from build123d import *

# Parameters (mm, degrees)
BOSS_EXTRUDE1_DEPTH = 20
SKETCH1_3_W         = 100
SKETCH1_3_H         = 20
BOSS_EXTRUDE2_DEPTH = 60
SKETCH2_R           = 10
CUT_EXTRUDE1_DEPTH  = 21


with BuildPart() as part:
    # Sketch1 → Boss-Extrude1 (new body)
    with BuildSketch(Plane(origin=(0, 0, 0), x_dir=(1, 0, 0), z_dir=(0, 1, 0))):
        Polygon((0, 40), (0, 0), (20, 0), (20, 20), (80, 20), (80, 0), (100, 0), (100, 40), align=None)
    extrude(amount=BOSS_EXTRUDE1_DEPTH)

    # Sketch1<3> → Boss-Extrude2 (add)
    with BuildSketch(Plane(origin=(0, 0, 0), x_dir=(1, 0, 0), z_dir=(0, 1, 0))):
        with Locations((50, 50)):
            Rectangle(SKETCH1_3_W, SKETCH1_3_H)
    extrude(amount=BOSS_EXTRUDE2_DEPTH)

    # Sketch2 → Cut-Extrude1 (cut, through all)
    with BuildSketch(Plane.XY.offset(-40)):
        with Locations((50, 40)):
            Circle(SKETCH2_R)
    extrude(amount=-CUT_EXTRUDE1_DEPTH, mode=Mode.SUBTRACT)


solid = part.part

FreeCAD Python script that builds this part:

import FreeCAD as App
import Part
import Sketcher

V = App.Vector


def add_polygon(sketch, points):
    """Adds a closed chain of lines whose ends are joined by coincident constraints."""
    first, n = sketch.GeometryCount, len(points)
    for a, b in zip(points, points[1:] + points[:1]):
        sketch.addGeometry(Part.LineSegment(App.Vector(*a, 0), App.Vector(*b, 0)), False)
    for i in range(n):
        sketch.addConstraint(Sketcher.Constraint("Coincident", first + i, 2, first + (i + 1) % n, 1))

doc = App.newDocument("Part")
params = doc.addObject("Spreadsheet::Sheet", "Params")
for row, (alias, value) in enumerate([
    ("sketch1_width", "20 mm"),
    ("sketch1_width2", "60 mm"),
    ("sketch1_height", "40 mm"),
    ("pad1_length", "20 mm"),
    ("sketch2_width", "100 mm"),
    ("sketch2_height", "20 mm"),
    ("pad2_length", "60 mm"),
    ("sketch3_diameter", "20 mm"),
], start=1):
    params.set(f"A{row}", alias)
    params.set(f"B{row}", "=" + value)
    params.setAlias(f"B{row}", alias)

body = doc.addObject("PartDesign::Body", "Body")

sketch1 = body.newObject("Sketcher::SketchObject", "Sketch")
sketch1.AttachmentSupport = (doc.getObject("XZ_Plane"), [""])
sketch1.MapMode = "FlatFace"
add_polygon(sketch1, [(0, -40), (0, 0), (20, 0), (20, -20), (80, -20), (80, 0), (100, 0), (100, -40)])
sketch1.addConstraint(Sketcher.Constraint("Vertical", 0))
sketch1.addConstraint(Sketcher.Constraint("Horizontal", 1))
sketch1.addConstraint(Sketcher.Constraint("Vertical", 2))
sketch1.addConstraint(Sketcher.Constraint("Horizontal", 3))
sketch1.addConstraint(Sketcher.Constraint("Vertical", 4))
sketch1.addConstraint(Sketcher.Constraint("Horizontal", 5))
sketch1.addConstraint(Sketcher.Constraint("Vertical", 6))
sketch1.addConstraint(Sketcher.Constraint("Horizontal", 7))
sketch1.addConstraint(Sketcher.Constraint("Coincident", 0, 2, -1, 1))
sketch1.addConstraint(Sketcher.Constraint("PointOnObject", 4, 2, -1))
sketch1.addConstraint(Sketcher.Constraint("Equal", 1, 5))
sketch1.addConstraint(Sketcher.Constraint("Equal", 5, 2))
sketch1.addConstraint(Sketcher.Constraint("DistanceX", 1, 1, 1, 2, 20.0))
sketch1.addConstraint(Sketcher.Constraint("DistanceX", 3, 1, 3, 2, 60.0))
sketch1.addConstraint(Sketcher.Constraint("DistanceY", 0, 1, 0, 2, 40.0))
sketch1.setExpression("Constraints[20]", "Params.sketch1_width")
sketch1.setExpression("Constraints[21]", "Params.sketch1_width2")
sketch1.setExpression("Constraints[22]", "Params.sketch1_height")
pad1 = body.newObject("PartDesign::Pad", "Pad")
pad1.Profile = sketch1
pad1.setExpression("Length", "Params.pad1_length")
pad1.Reversed = True

sketch2 = body.newObject("Sketcher::SketchObject", "Sketch001")
sketch2.AttachmentSupport = (doc.getObject("XZ_Plane"), [""])
sketch2.MapMode = "FlatFace"
add_polygon(sketch2, [(0, -60), (0, -40), (100, -40), (100, -60)])
sketch2.addConstraint(Sketcher.Constraint("Vertical", 0))
sketch2.addConstraint(Sketcher.Constraint("Horizontal", 1))
sketch2.addConstraint(Sketcher.Constraint("Vertical", 2))
sketch2.addConstraint(Sketcher.Constraint("Horizontal", 3))
sketch2.addConstraint(Sketcher.Constraint("PointOnObject", 0, 2, -2))
sketch2.addConstraint(Sketcher.Constraint("DistanceX", 1, 1, 1, 2, 100.0))
sketch2.addConstraint(Sketcher.Constraint("DistanceY", 0, 1, 0, 2, 20.0))
sketch2.addConstraint(Sketcher.Constraint("DistanceY", 0, 2, -1, 1, 40.0))
sketch2.setExpression("Constraints[9]", "Params.sketch2_width")
sketch2.setExpression("Constraints[10]", "Params.sketch2_height")
pad2 = body.newObject("PartDesign::Pad", "Pad001")
pad2.Profile = sketch2
pad2.setExpression("Length", "Params.pad2_length")
pad2.Reversed = True

sketch3 = body.newObject("Sketcher::SketchObject", "Sketch002")
sketch3.AttachmentSupport = (doc.getObject("XY_Plane"), [""])
sketch3.MapMode = "FlatFace"
sketch3.AttachmentOffset = App.Placement(V(0, 0, -40), App.Rotation())
sketch3.addGeometry(Part.Circle(V(50, 40, 0), V(0, 0, 1), 10), False)
sketch3.addConstraint(Sketcher.Constraint("Diameter", 0, 20.0))
sketch3.addConstraint(Sketcher.Constraint("DistanceX", -1, 1, 0, 3, 50.0))
sketch3.addConstraint(Sketcher.Constraint("DistanceY", -1, 1, 0, 3, 40.0))
sketch3.setExpression("Constraints[0]", "Params.sketch3_diameter")
pocket1 = body.newObject("PartDesign::Pocket", "Pocket")
pocket1.Profile = sketch3
pocket1.Type = "ThroughAll"

doc.recompute()
